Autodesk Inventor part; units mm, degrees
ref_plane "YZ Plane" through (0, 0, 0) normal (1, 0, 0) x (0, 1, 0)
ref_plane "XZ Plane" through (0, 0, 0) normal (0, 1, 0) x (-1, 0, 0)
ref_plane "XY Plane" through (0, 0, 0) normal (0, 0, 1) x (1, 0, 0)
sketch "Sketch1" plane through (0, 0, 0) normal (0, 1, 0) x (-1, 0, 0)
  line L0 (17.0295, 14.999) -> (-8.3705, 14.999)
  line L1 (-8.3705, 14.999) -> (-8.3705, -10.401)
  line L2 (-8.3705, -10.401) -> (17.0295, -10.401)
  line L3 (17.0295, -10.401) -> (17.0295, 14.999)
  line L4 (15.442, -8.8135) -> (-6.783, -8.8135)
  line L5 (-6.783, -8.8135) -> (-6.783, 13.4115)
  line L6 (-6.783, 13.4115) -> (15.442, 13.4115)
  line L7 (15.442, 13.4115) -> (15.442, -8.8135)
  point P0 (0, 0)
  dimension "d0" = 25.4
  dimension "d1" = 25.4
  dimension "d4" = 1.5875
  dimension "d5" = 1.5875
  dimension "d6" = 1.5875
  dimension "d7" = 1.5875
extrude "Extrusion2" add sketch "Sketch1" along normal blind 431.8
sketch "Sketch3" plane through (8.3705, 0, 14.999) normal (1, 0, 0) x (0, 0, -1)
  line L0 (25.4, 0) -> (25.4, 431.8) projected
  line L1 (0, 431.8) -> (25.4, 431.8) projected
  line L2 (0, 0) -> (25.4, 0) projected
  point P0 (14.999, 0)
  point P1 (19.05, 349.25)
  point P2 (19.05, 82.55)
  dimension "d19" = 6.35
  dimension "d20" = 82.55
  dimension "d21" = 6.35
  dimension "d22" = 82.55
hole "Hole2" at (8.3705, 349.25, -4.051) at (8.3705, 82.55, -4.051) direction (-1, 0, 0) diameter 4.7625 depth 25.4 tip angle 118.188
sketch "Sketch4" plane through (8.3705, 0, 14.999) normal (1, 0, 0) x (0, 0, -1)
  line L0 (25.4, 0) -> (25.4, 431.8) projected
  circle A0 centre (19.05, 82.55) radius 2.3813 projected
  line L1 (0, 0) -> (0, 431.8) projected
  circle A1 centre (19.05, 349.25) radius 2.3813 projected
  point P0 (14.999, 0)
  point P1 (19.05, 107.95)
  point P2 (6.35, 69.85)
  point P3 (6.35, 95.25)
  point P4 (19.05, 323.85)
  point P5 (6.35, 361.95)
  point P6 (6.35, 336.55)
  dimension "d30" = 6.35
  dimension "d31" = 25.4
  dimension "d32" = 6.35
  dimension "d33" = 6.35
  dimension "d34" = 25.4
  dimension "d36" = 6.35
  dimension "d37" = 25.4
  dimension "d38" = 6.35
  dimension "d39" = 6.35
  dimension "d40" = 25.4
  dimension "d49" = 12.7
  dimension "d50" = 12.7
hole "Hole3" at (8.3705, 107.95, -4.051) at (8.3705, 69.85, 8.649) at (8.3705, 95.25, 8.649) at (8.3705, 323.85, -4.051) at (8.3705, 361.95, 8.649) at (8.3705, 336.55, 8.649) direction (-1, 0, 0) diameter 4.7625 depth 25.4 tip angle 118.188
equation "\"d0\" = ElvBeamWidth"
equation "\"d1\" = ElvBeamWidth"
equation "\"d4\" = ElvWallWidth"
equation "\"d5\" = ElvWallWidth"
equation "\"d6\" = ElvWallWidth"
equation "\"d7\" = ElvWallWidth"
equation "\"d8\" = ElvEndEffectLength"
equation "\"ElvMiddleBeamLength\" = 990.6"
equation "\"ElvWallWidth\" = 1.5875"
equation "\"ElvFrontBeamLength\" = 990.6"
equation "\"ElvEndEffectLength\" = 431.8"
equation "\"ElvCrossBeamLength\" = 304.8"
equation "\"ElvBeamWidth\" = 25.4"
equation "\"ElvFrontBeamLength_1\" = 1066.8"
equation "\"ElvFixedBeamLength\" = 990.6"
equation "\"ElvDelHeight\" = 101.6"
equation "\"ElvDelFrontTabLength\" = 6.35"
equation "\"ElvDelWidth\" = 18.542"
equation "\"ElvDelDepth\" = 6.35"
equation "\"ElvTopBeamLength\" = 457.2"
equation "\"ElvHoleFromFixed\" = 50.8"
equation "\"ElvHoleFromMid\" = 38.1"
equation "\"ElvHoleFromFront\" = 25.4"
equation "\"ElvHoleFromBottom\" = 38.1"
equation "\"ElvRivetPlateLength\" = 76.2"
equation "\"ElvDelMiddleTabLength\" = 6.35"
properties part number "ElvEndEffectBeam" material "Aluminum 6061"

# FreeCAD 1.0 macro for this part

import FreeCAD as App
import Part
import Sketcher
Q = App.Units.Quantity


def add_polygon(sketch, points):
    """Adds a closed chain of lines whose ends are joined by coincident constraints."""
    first, n = sketch.GeometryCount, len(points)
    for a, b in zip(points, points[1:] + points[:1]):
        sketch.addGeometry(Part.LineSegment(App.Vector(*a, 0), App.Vector(*b, 0)), False)
    for i in range(n):
        sketch.addConstraint(Sketcher.Constraint("Coincident", first + i, 2, first + (i + 1) % n, 1))

doc = App.newDocument("Part")
body = doc.addObject("PartDesign::Body", "Body")

# Sketch on XZ plane
sketch1 = body.newObject("Sketcher::SketchObject", "Sketch")
sketch1.AttachmentSupport = (doc.getObject("XZ_Plane"), [""])
sketch1.MapMode = "FlatFace"
add_polygon(sketch1, [(-17, -10), (-17, 15), (8, 15), (8, -10)])  # lines 0-3
add_polygon(sketch1, [(-15, 13), (-15, -9), (7, -9), (7, 13)])  # lines 4-7
sketch1.addConstraint([
    Sketcher.Constraint("Vertical", 0),
    Sketcher.Constraint("Horizontal", 1),
    Sketcher.Constraint("Vertical", 2),
    Sketcher.Constraint("Horizontal", 3),
    Sketcher.Constraint("Vertical", 4),
    Sketcher.Constraint("Horizontal", 5),
    Sketcher.Constraint("Vertical", 6),
    Sketcher.Constraint("Horizontal", 7),
    Sketcher.Constraint("Equal", 3, 0),
    Sketcher.Constraint("Equal", 7, 4),
    Sketcher.Constraint("DistanceX", 1, 1, 1, 2, Q("1 in")),
    Sketcher.Constraint("DistanceX", 3, 2, 4, 2, Q("0.0625 in")),
    Sketcher.Constraint("DistanceY", 3, 2, 4, 2, Q("0.0625 in")),
    Sketcher.Constraint("DistanceX", 5, 2, 2, 2, Q("0.0625 in")),
    Sketcher.Constraint("DistanceY", 4, 2, -1, 1, Q("0.347 in")),
    Sketcher.Constraint("DistanceX", 0, 2, -1, 1, 17.0295),
])
pad1 = body.newObject("PartDesign::Pad", "Pad")
pad1.Profile = sketch1
pad1.Length = Q("17 in")
pad1.Reversed = True

# Sketch on YZ plane
sketch2 = body.newObject("Sketcher::SketchObject", "Sketch001")
sketch2.AttachmentSupport = (doc.getObject("YZ_Plane"), [""])
sketch2.MapMode = "FlatFace"
sketch2.AttachmentOffset = App.Placement(App.Vector(0, 0, 8.3705), App.Rotation())
sketch2.addGeometry([
    Part.Circle(App.Vector(349.2, -4.1, 0), App.Vector(0, 0, 1), 2.4),
    Part.Circle(App.Vector(82.5, -4.1, 0), App.Vector(0, 0, 1), 2.4),
], False)
sketch2.addConstraint([
    Sketcher.Constraint("Equal", 0, 1),
    Sketcher.Constraint("Horizontal", 0, 3, 1, 3),
    Sketcher.Constraint("Diameter", 0, Q("0.1875 in")),
    Sketcher.Constraint("DistanceX", 1, 3, 0, 3, Q("10.5 in")),
    Sketcher.Constraint("DistanceX", -1, 1, 0, 3, Q("13.75 in")),
    Sketcher.Constraint("DistanceY", 0, 3, -1, 1, Q("0.1595 in")),
])
doc.recompute()
hole = body.newObject("PartDesign::Hole", "Hole")
hole.Profile = sketch2
hole.ThreadType = "None"
hole.Diameter = Q("0.1875 in")
hole.DepthType = "Dimension"
hole.Depth = Q("1 in")
hole.DrillPoint = "Angled"
hole.DrillPointAngle = 118.188

# Sketch on YZ plane
sketch3 = body.newObject("Sketcher::SketchObject", "Sketch002")
sketch3.AttachmentSupport = (doc.getObject("YZ_Plane"), [""])
sketch3.MapMode = "FlatFace"
sketch3.AttachmentOffset = App.Placement(App.Vector(0, 0, 8.3705), App.Rotation())
sketch3.addGeometry([
    Part.Circle(App.Vector(108, -4.1, 0), App.Vector(0, 0, 1), 2.4),  # 0
    Part.Circle(App.Vector(69.8, 8.6, 0), App.Vector(0, 0, 1), 2.4),  # 1
    Part.Circle(App.Vector(95.2, 8.6, 0), App.Vector(0, 0, 1), 2.4),  # 2
    Part.Circle(App.Vector(323.9, -4.1, 0), App.Vector(0, 0, 1), 2.4),  # 3
    Part.Circle(App.Vector(361.9, 8.6, 0), App.Vector(0, 0, 1), 2.4),  # 4
    Part.Circle(App.Vector(336.6, 8.6, 0), App.Vector(0, 0, 1), 2.4),  # 5
], False)
sketch3.addConstraint([
    Sketcher.Constraint("Equal", 0, 1),
    Sketcher.Constraint("Equal", 1, 2),
    Sketcher.Constraint("Equal", 2, 3),
    Sketcher.Constraint("Equal", 3, 4),
    Sketcher.Constraint("Equal", 4, 5),
    Sketcher.Constraint("Horizontal", 1, 3, 2, 3),
    Sketcher.Constraint("Horizontal", 0, 3, 3, 3),
    Sketcher.Constraint("Horizontal", 2, 3, 4, 3),
    Sketcher.Constraint("Horizontal", 4, 3, 5, 3),
    Sketcher.Constraint("Diameter", 0, Q("0.1875 in")),
    Sketcher.Constraint("DistanceX", 1, 3, 2, 3, Q("1 in")),
    Sketcher.Constraint("DistanceX", 2, 3, 3, 3, Q("9 in")),
    Sketcher.Constraint("DistanceX", 0, 3, 4, 3, Q("10 in")),
    Sketcher.Constraint("DistanceX", 5, 3, 4, 3, Q("1 in")),
    Sketcher.Constraint("DistanceX", 1, 3, 0, 3, Q("1.5 in")),
    Sketcher.Constraint("DistanceY", 0, 3, 1, 3, Q("0.5 in")),
    Sketcher.Constraint("DistanceX", -1, 1, 0, 3, Q("4.25 in")),
    Sketcher.Constraint("DistanceY", 0, 3, -1, 1, Q("0.1595 in")),
])
doc.recompute()
hole2 = body.newObject("PartDesign::Hole", "Hole001")
hole2.Profile = sketch3
hole2.ThreadType = "None"
hole2.Diameter = Q("0.1875 in")
hole2.DepthType = "Dimension"
hole2.Depth = Q("1 in")
hole2.DrillPoint = "Angled"
hole2.DrillPointAngle = 118.188

doc.recompute()
